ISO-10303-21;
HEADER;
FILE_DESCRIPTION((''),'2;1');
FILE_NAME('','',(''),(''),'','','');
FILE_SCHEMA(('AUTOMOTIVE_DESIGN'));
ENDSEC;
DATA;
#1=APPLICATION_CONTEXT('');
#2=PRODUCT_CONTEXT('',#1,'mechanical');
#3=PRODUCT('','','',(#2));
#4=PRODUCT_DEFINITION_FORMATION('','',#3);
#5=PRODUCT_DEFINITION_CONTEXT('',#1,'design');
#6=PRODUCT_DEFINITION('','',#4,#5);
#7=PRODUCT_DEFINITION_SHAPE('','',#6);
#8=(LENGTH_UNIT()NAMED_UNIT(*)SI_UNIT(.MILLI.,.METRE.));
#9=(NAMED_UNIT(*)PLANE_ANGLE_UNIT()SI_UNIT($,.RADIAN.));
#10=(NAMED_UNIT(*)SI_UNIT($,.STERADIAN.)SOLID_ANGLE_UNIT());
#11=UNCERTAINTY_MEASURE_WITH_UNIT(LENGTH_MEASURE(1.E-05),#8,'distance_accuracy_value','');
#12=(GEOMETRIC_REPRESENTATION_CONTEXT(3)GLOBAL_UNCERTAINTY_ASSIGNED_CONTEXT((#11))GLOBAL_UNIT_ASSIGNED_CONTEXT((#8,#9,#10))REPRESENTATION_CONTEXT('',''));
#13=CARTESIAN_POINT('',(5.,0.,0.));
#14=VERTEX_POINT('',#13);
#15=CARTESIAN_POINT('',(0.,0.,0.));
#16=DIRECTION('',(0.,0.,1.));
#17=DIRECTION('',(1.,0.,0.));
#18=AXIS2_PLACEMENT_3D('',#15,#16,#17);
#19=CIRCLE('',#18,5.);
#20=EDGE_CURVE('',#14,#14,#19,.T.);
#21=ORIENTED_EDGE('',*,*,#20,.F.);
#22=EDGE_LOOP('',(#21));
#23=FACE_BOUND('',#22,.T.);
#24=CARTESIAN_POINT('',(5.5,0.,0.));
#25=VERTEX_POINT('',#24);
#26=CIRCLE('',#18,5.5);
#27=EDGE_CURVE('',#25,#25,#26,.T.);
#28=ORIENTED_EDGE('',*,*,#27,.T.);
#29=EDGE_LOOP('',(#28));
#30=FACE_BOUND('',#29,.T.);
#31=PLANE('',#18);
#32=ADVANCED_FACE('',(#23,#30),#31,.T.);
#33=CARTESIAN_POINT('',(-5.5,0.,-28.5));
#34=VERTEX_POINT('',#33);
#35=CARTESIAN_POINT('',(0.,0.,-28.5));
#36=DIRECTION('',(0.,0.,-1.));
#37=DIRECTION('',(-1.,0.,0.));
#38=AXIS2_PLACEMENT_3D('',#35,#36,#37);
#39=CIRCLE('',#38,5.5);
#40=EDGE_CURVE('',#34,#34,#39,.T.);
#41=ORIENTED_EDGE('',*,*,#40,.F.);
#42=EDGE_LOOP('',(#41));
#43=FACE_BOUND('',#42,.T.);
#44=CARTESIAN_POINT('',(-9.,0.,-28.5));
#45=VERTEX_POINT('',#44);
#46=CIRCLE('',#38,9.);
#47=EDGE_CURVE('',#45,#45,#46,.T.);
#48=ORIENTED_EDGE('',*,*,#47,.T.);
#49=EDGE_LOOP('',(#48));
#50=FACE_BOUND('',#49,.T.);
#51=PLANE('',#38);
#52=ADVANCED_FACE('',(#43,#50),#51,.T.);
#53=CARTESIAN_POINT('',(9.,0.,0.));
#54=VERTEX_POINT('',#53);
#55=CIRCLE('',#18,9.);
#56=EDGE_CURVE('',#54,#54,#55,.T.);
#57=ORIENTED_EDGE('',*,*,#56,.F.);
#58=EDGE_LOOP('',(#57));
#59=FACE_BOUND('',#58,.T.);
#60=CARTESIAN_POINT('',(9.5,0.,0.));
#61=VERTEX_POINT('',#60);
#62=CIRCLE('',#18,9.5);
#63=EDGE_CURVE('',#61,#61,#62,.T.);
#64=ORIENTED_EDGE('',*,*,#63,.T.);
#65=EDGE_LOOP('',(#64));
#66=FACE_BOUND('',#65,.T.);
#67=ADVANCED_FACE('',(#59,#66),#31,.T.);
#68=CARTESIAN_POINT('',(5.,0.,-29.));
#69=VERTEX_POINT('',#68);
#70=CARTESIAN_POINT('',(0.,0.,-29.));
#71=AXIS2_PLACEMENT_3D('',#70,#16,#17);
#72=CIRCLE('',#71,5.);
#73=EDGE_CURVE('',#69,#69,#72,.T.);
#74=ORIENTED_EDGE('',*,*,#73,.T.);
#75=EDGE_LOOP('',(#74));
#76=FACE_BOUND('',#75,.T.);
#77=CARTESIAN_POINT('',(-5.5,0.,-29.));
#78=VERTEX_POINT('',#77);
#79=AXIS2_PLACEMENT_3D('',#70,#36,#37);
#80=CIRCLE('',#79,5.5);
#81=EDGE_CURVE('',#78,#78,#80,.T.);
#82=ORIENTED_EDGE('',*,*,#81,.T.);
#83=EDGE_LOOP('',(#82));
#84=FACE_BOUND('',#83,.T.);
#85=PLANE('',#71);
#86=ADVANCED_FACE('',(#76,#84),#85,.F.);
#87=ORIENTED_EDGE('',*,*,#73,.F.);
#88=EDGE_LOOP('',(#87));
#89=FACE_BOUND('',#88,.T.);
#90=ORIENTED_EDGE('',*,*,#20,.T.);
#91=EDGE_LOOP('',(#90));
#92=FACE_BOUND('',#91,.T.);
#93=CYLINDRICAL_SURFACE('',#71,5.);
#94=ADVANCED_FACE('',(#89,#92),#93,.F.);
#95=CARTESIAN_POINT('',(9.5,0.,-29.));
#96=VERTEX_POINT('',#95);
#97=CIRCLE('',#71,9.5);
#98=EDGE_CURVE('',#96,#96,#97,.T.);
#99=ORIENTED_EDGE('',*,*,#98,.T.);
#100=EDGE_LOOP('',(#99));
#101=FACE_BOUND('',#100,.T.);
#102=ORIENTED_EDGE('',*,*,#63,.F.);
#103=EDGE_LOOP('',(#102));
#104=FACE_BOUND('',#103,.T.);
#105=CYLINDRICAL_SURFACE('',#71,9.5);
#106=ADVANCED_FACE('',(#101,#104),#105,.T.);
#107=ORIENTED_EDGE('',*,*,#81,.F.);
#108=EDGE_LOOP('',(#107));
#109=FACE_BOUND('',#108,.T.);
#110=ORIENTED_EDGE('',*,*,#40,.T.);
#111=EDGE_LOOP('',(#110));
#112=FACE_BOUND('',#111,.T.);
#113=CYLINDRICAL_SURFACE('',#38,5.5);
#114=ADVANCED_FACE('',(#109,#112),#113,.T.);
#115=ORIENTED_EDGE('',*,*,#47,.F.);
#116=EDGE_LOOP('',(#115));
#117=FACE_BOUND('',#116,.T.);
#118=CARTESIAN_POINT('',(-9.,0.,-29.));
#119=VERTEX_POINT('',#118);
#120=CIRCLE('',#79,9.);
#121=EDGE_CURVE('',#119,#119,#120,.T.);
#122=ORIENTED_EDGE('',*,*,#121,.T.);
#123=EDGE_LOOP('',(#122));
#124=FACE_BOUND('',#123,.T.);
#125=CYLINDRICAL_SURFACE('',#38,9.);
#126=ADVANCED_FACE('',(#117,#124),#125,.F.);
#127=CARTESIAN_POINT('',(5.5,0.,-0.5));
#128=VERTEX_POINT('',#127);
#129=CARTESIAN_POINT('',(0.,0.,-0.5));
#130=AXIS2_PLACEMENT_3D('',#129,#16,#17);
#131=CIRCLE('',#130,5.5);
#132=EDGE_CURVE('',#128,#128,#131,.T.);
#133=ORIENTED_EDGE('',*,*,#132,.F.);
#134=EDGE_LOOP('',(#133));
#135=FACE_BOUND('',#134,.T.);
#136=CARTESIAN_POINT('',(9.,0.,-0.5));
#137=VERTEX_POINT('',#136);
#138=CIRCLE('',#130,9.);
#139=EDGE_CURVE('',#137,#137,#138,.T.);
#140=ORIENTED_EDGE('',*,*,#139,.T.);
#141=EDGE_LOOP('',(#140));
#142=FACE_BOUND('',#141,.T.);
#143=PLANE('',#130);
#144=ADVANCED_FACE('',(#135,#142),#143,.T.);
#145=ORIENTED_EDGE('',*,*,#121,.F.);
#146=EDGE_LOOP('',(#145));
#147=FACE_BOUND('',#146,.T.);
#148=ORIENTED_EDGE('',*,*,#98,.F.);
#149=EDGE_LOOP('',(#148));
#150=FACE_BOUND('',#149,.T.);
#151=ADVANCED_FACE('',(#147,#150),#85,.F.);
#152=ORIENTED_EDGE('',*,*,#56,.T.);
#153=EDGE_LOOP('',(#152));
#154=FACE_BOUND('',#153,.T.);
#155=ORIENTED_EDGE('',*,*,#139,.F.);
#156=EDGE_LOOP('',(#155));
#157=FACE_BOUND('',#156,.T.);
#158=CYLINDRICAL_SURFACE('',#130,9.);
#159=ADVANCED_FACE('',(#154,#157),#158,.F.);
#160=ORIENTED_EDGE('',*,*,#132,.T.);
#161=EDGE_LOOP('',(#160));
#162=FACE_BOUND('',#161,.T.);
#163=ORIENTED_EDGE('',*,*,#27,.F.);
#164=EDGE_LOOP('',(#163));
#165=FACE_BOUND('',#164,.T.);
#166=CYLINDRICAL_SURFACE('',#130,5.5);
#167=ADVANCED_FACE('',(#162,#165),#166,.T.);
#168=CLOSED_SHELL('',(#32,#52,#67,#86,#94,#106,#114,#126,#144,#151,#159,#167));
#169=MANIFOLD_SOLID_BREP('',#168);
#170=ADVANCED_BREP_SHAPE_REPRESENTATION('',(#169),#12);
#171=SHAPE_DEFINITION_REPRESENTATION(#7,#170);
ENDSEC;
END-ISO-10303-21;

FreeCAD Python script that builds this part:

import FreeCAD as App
import Part
import Sketcher
from FreeCAD import Vector
Q = App.Units.Quantity

doc = App.newDocument("Part")
body = doc.addObject("PartDesign::Body", "Body")

sketch1 = body.newObject("Sketcher::SketchObject", "Sketch")
sketch1.AttachmentSupport = (doc.getObject("XY_Plane"), [""])
sketch1.MapMode = "FlatFace"
sketch1.addGeometry(Part.Circle(Vector(0, 0, 0), Vector(0, 0, 1), 10), False)
sketch1.addGeometry(Part.Circle(Vector(0, 0, 0), Vector(0, 0, 1), 5), False)
sketch1.addConstraint(Sketcher.Constraint("Coincident", 0, 3, -1, 1))
sketch1.addConstraint(Sketcher.Constraint("Coincident", 1, 3, -1, 1))
sketch1.addConstraint(Sketcher.Constraint("Diameter", 0, Q("19 mm")))
sketch1.addConstraint(Sketcher.Constraint("Diameter", 1, Q("10 mm")))
pad1 = body.newObject("PartDesign::Pad", "Pad")
pad1.Profile = sketch1
pad1.Length = 29
pad1.Reversed = True

sketch2 = body.newObject("Sketcher::SketchObject", "Sketch001")
sketch2.AttachmentSupport = (doc.getObject("XY_Plane"), [""])
sketch2.MapMode = "FlatFace"
sketch2.addGeometry(Part.Circle(Vector(0, 0, 0), Vector(0, 0, 1), 9), False)
sketch2.addGeometry(Part.Circle(Vector(0, 0, 0), Vector(0, 0, 1), 6), False)
sketch2.addConstraint(Sketcher.Constraint("Coincident", 0, 3, -1, 1))
sketch2.addConstraint(Sketcher.Constraint("Coincident", 1, 3, -1, 1))
sketch2.addConstraint(Sketcher.Constraint("Diameter", 0, Q("18 mm")))
sketch2.addConstraint(Sketcher.Constraint("Diameter", 1, Q("11 mm")))
pocket1 = body.newObject("PartDesign::Pocket", "Pocket")
pocket1.Profile = sketch2
pocket1.Length = 0.5

sketch3 = body.newObject("Sketcher::SketchObject", "Sketch002")
sketch3.AttachmentSupport = (doc.getObject("XY_Plane"), [""])
sketch3.MapMode = "FlatFace"
sketch3.AttachmentOffset = App.Placement(Vector(0, 0, -29), App.Rotation())
sketch3.addGeometry(Part.Circle(Vector(0, 0, 0), Vector(0, 0, 1), 9), False)
sketch3.addGeometry(Part.Circle(Vector(0, 0, 0), Vector(0, 0, 1), 6), False)
sketch3.addConstraint(Sketcher.Constraint("Coincident", 0, 3, -1, 1))
sketch3.addConstraint(Sketcher.Constraint("Coincident", 1, 3, -1, 1))
sketch3.addConstraint(Sketcher.Constraint("Diameter", 0, Q("18 mm")))
sketch3.addConstraint(Sketcher.Constraint("Diameter", 1, Q("11 mm")))
pocket2 = body.newObject("PartDesign::Pocket", "Pocket001")
pocket2.Profile = sketch3
pocket2.Length = 0.5
pocket2.Reversed = True

doc.recompute()
